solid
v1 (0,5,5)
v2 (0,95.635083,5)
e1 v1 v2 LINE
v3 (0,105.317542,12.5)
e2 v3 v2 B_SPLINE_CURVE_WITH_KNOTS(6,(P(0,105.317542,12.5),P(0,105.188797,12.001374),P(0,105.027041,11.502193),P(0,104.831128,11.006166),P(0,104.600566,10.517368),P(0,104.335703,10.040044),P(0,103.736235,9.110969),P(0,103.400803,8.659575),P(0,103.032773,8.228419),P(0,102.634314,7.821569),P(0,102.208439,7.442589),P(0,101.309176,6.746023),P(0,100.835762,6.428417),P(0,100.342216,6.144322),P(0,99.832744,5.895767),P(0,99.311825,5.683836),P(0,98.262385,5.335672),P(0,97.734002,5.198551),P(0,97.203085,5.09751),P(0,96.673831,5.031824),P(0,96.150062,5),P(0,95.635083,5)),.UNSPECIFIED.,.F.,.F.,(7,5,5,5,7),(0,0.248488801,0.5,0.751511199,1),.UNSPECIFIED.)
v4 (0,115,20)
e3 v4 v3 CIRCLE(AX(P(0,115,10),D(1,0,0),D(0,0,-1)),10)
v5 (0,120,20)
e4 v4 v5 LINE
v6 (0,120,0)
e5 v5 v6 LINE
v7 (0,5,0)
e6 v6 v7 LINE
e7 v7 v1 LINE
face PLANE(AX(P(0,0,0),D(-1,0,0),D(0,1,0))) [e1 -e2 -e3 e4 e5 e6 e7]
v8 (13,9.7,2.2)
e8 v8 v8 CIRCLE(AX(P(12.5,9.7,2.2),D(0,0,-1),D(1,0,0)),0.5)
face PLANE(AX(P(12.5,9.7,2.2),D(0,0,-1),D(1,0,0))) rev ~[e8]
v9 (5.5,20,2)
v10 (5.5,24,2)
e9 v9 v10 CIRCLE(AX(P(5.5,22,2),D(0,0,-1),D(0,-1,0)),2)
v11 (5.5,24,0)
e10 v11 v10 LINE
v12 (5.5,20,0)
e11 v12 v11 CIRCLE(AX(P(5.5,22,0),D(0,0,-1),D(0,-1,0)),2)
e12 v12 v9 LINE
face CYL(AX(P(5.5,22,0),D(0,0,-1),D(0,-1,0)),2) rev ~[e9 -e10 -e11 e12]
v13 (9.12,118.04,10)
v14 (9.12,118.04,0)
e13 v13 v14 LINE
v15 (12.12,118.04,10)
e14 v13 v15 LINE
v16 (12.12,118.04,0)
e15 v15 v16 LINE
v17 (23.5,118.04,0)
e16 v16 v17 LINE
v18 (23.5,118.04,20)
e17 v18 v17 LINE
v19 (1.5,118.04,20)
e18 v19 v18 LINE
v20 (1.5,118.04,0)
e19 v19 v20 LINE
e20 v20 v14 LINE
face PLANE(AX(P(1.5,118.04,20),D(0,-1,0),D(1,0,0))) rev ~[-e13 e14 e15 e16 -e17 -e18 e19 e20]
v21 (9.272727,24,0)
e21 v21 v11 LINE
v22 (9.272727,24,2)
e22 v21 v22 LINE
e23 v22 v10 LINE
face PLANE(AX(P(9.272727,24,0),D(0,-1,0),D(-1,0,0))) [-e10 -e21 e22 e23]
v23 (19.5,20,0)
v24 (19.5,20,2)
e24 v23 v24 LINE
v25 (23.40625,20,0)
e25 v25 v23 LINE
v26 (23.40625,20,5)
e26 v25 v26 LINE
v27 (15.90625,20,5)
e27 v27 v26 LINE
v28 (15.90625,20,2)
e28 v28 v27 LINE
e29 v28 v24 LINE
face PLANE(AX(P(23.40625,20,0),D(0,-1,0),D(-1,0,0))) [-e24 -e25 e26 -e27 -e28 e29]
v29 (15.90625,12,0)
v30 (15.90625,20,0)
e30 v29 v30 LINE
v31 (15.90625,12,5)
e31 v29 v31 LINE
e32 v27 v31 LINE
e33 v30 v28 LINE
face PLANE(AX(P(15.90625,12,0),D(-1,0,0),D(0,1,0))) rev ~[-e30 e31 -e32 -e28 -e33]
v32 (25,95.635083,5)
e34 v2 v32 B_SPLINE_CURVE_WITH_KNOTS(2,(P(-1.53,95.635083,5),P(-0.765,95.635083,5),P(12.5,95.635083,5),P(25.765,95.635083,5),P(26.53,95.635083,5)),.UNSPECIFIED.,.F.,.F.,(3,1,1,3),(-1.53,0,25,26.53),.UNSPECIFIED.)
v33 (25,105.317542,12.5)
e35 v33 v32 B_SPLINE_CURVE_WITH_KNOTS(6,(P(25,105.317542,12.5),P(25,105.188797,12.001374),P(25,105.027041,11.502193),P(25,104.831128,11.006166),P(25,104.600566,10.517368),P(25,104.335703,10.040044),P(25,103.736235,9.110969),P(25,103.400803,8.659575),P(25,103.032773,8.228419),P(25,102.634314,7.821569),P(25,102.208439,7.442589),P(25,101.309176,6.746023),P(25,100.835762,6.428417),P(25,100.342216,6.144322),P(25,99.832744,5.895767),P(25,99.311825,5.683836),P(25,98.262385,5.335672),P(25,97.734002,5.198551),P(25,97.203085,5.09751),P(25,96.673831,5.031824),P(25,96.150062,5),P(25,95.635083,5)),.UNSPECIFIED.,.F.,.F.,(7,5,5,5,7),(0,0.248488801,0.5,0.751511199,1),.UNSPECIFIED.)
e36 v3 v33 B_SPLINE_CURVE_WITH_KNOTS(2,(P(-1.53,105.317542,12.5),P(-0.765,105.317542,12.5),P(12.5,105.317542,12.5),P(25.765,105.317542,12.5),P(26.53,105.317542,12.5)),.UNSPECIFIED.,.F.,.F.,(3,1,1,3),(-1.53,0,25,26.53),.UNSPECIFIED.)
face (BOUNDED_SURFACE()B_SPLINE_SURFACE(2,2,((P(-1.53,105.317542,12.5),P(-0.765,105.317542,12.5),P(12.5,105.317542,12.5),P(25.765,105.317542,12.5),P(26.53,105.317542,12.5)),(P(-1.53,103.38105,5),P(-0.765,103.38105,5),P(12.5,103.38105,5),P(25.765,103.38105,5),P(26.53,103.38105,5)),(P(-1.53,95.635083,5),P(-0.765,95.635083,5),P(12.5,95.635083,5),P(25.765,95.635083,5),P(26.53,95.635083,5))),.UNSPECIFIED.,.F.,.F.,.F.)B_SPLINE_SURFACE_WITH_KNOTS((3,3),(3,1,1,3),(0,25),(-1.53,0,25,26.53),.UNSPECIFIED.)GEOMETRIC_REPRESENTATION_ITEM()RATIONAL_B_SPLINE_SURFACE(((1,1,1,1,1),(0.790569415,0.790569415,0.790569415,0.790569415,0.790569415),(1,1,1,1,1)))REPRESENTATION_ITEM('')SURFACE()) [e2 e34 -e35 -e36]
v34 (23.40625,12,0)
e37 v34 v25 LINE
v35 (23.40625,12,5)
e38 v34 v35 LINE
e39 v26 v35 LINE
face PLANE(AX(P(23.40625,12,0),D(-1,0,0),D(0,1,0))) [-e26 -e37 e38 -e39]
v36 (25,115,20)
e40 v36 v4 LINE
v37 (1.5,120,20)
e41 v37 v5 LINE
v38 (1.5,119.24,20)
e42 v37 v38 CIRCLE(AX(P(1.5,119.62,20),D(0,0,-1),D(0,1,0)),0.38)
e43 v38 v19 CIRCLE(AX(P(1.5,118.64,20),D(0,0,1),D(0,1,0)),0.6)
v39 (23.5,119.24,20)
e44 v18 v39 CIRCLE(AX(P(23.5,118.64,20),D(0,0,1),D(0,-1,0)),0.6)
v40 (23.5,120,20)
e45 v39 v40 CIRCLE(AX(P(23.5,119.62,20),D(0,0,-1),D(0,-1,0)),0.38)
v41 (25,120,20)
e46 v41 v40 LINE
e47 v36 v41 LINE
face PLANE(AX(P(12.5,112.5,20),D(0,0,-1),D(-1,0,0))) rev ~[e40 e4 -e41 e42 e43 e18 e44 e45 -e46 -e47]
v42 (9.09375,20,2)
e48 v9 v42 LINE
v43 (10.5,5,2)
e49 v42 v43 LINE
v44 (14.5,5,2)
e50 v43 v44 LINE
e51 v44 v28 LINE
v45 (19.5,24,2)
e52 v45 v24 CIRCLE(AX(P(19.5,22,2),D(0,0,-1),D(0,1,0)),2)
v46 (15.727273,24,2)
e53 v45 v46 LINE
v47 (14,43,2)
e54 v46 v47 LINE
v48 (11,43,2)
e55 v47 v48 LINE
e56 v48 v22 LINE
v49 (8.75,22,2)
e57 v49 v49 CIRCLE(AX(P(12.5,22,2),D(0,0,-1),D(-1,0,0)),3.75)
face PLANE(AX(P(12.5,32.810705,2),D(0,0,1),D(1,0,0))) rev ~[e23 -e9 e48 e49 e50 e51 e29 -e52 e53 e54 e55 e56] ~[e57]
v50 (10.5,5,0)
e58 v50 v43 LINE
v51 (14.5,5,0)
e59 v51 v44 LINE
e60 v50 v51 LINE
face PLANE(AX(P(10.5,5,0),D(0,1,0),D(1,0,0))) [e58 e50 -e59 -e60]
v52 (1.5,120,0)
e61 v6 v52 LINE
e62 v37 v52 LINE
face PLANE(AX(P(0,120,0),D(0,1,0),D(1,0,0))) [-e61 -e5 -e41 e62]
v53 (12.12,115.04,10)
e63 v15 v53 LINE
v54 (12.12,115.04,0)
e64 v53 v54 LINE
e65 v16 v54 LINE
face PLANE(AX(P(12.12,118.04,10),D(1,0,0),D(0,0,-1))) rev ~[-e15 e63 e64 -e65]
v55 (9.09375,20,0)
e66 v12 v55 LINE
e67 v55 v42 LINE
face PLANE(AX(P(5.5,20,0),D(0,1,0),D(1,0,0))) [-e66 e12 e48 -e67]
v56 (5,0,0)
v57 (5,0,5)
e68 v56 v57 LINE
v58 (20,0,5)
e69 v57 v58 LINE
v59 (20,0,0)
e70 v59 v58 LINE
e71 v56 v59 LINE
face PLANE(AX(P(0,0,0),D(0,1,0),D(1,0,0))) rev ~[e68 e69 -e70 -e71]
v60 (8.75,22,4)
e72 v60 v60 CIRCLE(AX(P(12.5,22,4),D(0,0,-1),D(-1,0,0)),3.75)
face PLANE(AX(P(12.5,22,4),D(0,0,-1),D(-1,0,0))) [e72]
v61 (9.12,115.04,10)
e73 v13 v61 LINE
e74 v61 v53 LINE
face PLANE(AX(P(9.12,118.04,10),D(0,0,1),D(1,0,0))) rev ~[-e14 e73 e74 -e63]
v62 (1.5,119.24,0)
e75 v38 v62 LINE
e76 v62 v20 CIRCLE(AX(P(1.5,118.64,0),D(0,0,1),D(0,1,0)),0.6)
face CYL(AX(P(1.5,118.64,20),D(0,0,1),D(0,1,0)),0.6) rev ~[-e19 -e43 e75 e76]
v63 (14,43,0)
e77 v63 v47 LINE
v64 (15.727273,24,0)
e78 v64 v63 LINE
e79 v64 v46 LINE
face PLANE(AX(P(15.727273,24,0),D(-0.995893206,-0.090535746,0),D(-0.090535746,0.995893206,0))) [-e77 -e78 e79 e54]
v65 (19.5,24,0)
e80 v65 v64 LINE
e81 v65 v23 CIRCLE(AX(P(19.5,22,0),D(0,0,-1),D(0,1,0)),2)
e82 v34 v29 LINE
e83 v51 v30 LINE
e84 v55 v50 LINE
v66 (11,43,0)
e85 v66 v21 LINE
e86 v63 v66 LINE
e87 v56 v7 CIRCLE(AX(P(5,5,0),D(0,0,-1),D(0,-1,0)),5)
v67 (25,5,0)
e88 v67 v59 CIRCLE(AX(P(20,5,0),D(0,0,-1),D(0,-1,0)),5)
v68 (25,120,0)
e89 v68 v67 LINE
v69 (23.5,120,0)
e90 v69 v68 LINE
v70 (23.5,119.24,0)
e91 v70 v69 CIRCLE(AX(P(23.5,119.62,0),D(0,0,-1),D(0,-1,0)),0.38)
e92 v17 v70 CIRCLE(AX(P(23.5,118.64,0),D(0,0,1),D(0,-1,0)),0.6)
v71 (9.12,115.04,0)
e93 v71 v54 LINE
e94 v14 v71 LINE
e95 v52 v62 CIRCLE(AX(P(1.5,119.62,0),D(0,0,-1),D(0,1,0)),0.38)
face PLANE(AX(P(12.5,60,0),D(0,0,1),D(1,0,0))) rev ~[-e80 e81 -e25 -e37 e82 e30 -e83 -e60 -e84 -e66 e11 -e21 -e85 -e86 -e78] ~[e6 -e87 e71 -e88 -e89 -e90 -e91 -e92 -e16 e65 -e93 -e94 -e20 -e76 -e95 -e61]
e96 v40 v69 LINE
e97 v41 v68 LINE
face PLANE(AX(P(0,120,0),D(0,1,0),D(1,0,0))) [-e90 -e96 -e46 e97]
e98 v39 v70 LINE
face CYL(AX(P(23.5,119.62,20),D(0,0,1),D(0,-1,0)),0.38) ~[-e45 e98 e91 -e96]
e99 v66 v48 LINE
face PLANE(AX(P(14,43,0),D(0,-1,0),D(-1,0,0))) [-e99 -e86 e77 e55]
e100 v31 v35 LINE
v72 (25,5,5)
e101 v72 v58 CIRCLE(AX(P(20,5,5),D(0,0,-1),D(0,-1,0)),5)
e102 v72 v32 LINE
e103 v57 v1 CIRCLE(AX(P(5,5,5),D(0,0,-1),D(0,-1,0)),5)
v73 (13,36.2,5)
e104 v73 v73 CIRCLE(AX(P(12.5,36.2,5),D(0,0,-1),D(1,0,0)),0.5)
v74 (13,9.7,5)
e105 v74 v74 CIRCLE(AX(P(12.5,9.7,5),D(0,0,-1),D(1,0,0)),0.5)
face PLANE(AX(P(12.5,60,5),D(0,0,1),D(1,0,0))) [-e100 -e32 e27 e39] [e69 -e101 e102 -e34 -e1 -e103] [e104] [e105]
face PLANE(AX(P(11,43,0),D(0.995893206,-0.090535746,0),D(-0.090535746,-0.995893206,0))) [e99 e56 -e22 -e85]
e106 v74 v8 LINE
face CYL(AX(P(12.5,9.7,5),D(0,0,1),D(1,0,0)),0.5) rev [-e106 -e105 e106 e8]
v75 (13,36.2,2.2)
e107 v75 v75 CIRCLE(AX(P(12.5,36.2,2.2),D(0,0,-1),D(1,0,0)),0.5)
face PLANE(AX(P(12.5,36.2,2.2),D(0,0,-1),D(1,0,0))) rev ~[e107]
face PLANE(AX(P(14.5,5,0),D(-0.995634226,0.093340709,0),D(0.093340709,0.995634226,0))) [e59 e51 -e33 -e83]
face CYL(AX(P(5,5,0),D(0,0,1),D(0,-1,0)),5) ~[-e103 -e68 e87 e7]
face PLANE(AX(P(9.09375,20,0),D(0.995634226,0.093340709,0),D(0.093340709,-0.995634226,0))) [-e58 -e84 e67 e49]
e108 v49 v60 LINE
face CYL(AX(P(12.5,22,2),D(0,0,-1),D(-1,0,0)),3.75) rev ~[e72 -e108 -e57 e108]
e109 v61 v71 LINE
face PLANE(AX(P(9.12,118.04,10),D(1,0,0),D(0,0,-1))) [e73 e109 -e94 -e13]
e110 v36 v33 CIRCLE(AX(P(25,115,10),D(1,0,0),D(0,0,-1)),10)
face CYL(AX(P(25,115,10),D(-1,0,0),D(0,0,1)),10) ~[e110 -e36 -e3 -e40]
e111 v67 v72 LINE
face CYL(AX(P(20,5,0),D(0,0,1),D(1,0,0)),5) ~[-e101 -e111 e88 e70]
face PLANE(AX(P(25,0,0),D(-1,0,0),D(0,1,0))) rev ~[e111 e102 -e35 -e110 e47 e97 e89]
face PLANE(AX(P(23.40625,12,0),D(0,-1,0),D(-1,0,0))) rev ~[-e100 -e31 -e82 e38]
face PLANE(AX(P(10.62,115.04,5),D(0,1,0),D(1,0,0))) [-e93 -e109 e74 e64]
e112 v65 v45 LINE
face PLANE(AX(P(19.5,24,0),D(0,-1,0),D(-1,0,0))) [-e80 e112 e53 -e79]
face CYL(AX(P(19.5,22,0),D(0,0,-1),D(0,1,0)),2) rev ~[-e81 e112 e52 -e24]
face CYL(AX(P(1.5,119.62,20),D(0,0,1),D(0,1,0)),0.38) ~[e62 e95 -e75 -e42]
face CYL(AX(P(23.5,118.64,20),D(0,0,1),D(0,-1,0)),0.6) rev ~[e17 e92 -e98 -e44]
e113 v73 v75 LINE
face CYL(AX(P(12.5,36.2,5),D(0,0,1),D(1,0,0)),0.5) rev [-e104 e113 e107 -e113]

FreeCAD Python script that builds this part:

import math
import FreeCAD as App
import Part
import Sketcher
from FreeCAD import Vector
Q = App.Units.Quantity


def edges_at(feature, points):
    """Names of the edges that pass closest to the given points."""
    edges = feature.Shape.Edges
    near = lambda p: min(range(len(edges)), key=lambda i: edges[i].distToShape(Part.Vertex(*p))[0])
    return sorted({f"Edge{near(p) + 1}" for p in points})


def add_polygon(sketch, points):
    """Adds a closed chain of lines whose ends are joined by coincident constraints."""
    first, n = sketch.GeometryCount, len(points)
    for a, b in zip(points, points[1:] + points[:1]):
        sketch.addGeometry(Part.LineSegment(App.Vector(*a, 0), App.Vector(*b, 0)), False)
    for i in range(n):
        sketch.addConstraint(Sketcher.Constraint("Coincident", first + i, 2, first + (i + 1) % n, 1))

doc = App.newDocument("Part")
body = doc.addObject("PartDesign::Body", "Body")

# Sketch on XY plane
sketch1 = doc.addObject("Sketcher::SketchObject", "Sketch")
body.addObject(sketch1)
sketch1.AttachmentSupport = (doc.XY_Plane, [""])
sketch1.MapMode = "FlatFace"
add_polygon(sketch1, [(0, 120), (0, 0), (25, 0), (25, 120)])  # lines 0-3
sketch1.addConstraint([
    Sketcher.Constraint("Vertical", 0),
    Sketcher.Constraint("Horizontal", 1),
    Sketcher.Constraint("Vertical", 2),
    Sketcher.Constraint("Horizontal", 3),
    Sketcher.Constraint("Coincident", 0, 2, -1, 1),
    Sketcher.Constraint("DistanceX", 1, 1, 1, 2, Q("25 mm")),
    Sketcher.Constraint("DistanceY", 0, 2, 0, 1, Q("120 mm")),
])
pad1 = doc.addObject("PartDesign::Pad", "Pad")
body.addObject(pad1)
pad1.Profile = sketch1
pad1.Length = 5

# Sketch on XY plane
sketch2 = doc.addObject("Sketcher::SketchObject", "Sketch001")
body.addObject(sketch2)
sketch2.AttachmentSupport = (doc.XY_Plane, [""])
sketch2.MapMode = "FlatFace"
add_polygon(sketch2, [(25, 120), (25, 105), (0, 105), (0, 120)])  # lines 0-3
sketch2.addConstraint([
    Sketcher.Constraint("Vertical", 0),
    Sketcher.Constraint("Horizontal", 1),
    Sketcher.Constraint("Vertical", 2),
    Sketcher.Constraint("Horizontal", 3),
    Sketcher.Constraint("PointOnObject", 1, 2, -2),
    Sketcher.Constraint("DistanceX", 1, 2, 1, 1, Q("25 mm")),
    Sketcher.Constraint("DistanceY", 0, 2, 0, 1, Q("15 mm")),
    Sketcher.Constraint("DistanceY", -1, 1, 0, 2, Q("105 mm")),
])
pad2 = doc.addObject("PartDesign::Pad", "Pad001")
body.addObject(pad2)
pad2.Profile = sketch2
pad2.Length = 20
doc.recompute()

fillet = doc.addObject("PartDesign::Fillet", "Fillet")
body.addObject(fillet)
fillet.Base = (pad2, edges_at(pad2, [(25, 0, 2.5)]))
fillet.Radius = 5
doc.recompute()

fillet2 = doc.addObject("PartDesign::Fillet", "Fillet001")
body.addObject(fillet2)
fillet2.Base = (fillet, edges_at(fillet, [(0, 0, 2.5)]))
fillet2.Radius = 5

# Sketch on XY plane
sketch3 = doc.addObject("Sketcher::SketchObject", "Sketch002")
body.addObject(sketch3)
sketch3.AttachmentSupport = (doc.XY_Plane, [""])
sketch3.MapMode = "FlatFace"
sketch3.AttachmentOffset = App.Placement(Vector(0, 0, 20), App.Rotation())
sketch3.addGeometry([
    Part.LineSegment(Vector(1.5, 118.04, 0), Vector(23.5, 118.04, 0)),  # 0
    Part.ArcOfCircle(Part.Circle(Vector(23.5, 118.64, 0), Vector(0, 0, 1), 0.6), math.radians(-90), math.radians(90)),  # 1
    Part.ArcOfCircle(Part.Circle(Vector(23.5, 119.62, 0), Vector(0, 0, 1), 0.38), math.radians(90), math.radians(270)),  # 2
    Part.LineSegment(Vector(23.5, 120, 0), Vector(1.5, 120, 0)),  # 3
    Part.ArcOfCircle(Part.Circle(Vector(1.5, 119.62, 0), Vector(0, 0, 1), 0.38), math.radians(-90), math.radians(90)),  # 4
    Part.ArcOfCircle(Part.Circle(Vector(1.5, 118.64, 0), Vector(0, 0, 1), 0.6), math.radians(90), math.radians(270)),  # 5
], False)
sketch3.addConstraint([
    Sketcher.Constraint("Tangent", 0, 2, 1, 1),
    Sketcher.Constraint("Tangent", 1, 2, 2, 2),
    Sketcher.Constraint("Tangent", 2, 1, 3, 1),
    Sketcher.Constraint("Tangent", 3, 2, 4, 2),
    Sketcher.Constraint("Tangent", 4, 1, 5, 1),
    Sketcher.Constraint("Tangent", 5, 2, 0, 1),
    Sketcher.Constraint("Horizontal", 0),
    Sketcher.Constraint("Horizontal", 3),
    Sketcher.Constraint("Equal", 2, 4),
    Sketcher.Constraint("Vertical", 1, 3, 2, 3),
    Sketcher.Constraint("Vertical", 4, 3, 5, 3),
    Sketcher.Constraint("Radius", 1, Q("0.6 mm")),
    Sketcher.Constraint("DistanceX", 0, 1, 0, 2, Q("22 mm")),
    Sketcher.Constraint("Radius", 2, Q("0.38 mm")),
    Sketcher.Constraint("DistanceY", -1, 1, 2, 1, Q("120 mm")),
    Sketcher.Constraint("DistanceX", -1, 1, 1, 3, Q("23.5 mm")),
])
pocket1 = doc.addObject("PartDesign::Pocket", "Pocket")
body.addObject(pocket1)
pocket1.Profile = sketch3
pocket1.Length = 20
doc.recompute()

fillet3 = doc.addObject("PartDesign::Fillet", "Fillet002")
body.addObject(fillet3)
fillet3.Base = (pocket1, edges_at(pocket1, [(12.5, 105, 20)]))
fillet3.Radius = 10
doc.recompute()

fillet4 = doc.addObject("PartDesign::Fillet", "Fillet003")
body.addObject(fillet4)
fillet4.Base = (fillet3, edges_at(fillet3, [(12.5, 105, 5)]))
fillet4.Radius = 10

# Sketch on XZ plane
sketch4 = doc.addObject("Sketcher::SketchObject", "Sketch003")
body.addObject(sketch4)
sketch4.AttachmentSupport = (doc.XZ_Plane, [""])
sketch4.MapMode = "FlatFace"
sketch4.AttachmentOffset = App.Placement(Vector(0, 0, -118.04), App.Rotation())
add_polygon(sketch4, [(9.1, 0), (9.1, 10), (12.1, 10), (12.1, 0)])  # lines 0-3
sketch4.addConstraint([
    Sketcher.Constraint("Vertical", 0),
    Sketcher.Constraint("Horizontal", 1),
    Sketcher.Constraint("Vertical", 2),
    Sketcher.Constraint("Horizontal", 3),
    Sketcher.Constraint("PointOnObject", 2, 2, -1),
    Sketcher.Constraint("DistanceX", 1, 1, 1, 2, Q("3 mm")),
    Sketcher.Constraint("DistanceY", 0, 1, 0, 2, Q("10 mm")),
    Sketcher.Constraint("DistanceX", -1, 1, 0, 2, Q("9.12 mm")),
])
pocket2 = doc.addObject("PartDesign::Pocket", "Pocket001")
body.addObject(pocket2)
pocket2.Profile = sketch4
pocket2.Length = 3
pocket2.Reversed = True

# Sketch on XY plane
sketch5 = doc.addObject("Sketcher::SketchObject", "Sketch004")
body.addObject(sketch5)
sketch5.AttachmentSupport = (doc.XY_Plane, [""])
sketch5.MapMode = "FlatFace"
sketch5.addGeometry([
    Part.LineSegment(Vector(11, 43, 0), Vector(9.3, 24, 0)),  # 0
    Part.LineSegment(Vector(9.3, 24, 0), Vector(5.5, 24, 0)),  # 1
    Part.ArcOfCircle(Part.Circle(Vector(5.5, 22, 0), Vector(0, 0, 1), 2), math.radians(90), math.radians(270)),  # 2
    Part.LineSegment(Vector(5.5, 20, 0), Vector(9.1, 20, 0)),  # 3
    Part.LineSegment(Vector(9.1, 20, 0), Vector(10.5, 5, 0)),  # 4
    Part.LineSegment(Vector(10.5, 5, 0), Vector(14.5, 5, 0)),  # 5
    Part.LineSegment(Vector(14.5, 5, 0), Vector(15.9, 20, 0)),  # 6
    Part.LineSegment(Vector(15.9, 20, 0), Vector(19.5, 20, 0)),  # 7
    Part.ArcOfCircle(Part.Circle(Vector(19.5, 22, 0), Vector(0, 0, 1), 2), math.radians(-90), math.radians(90)),  # 8
    Part.LineSegment(Vector(19.5, 24, 0), Vector(15.7, 24, 0)),  # 9
    Part.LineSegment(Vector(15.7, 24, 0), Vector(14, 43, 0)),  # 10
    Part.LineSegment(Vector(14, 43, 0), Vector(11, 43, 0)),  # 11
], False)
sketch5.addConstraint([
    Sketcher.Constraint("Coincident", 0, 2, 1, 1),
    Sketcher.Constraint("Tangent", 1, 2, 2, 1),
    Sketcher.Constraint("Tangent", 2, 2, 3, 1),
    Sketcher.Constraint("Coincident", 3, 2, 4, 1),
    Sketcher.Constraint("Coincident", 4, 2, 5, 1),
    Sketcher.Constraint("Coincident", 5, 2, 6, 1),
    Sketcher.Constraint("Coincident", 6, 2, 7, 1),
    Sketcher.Constraint("Tangent", 7, 2, 8, 1),
    Sketcher.Constraint("Tangent", 8, 2, 9, 1),
    Sketcher.Constraint("Coincident", 9, 2, 10, 1),
    Sketcher.Constraint("Coincident", 10, 2, 11, 1),
    Sketcher.Constraint("Coincident", 11, 2, 0, 1),
    Sketcher.Constraint("Horizontal", 1),
    Sketcher.Constraint("Horizontal", 3),
    Sketcher.Constraint("Horizontal", 5),
    Sketcher.Constraint("Horizontal", 7),
    Sketcher.Constraint("Horizontal", 9),
    Sketcher.Constraint("Horizontal", 11),
    Sketcher.Constraint("Equal", 2, 8),
    Sketcher.Constraint("Horizontal", 2, 3, 8, 3),
    Sketcher.Constraint("Equal", 3, 7),
    Sketcher.Constraint("Equal", 1, 9),
    Sketcher.Constraint("Equal", 4, 6),
    Sketcher.Constraint("Equal", 0, 10),
    Sketcher.Constraint("Radius", 2, Q("2 mm")),
    Sketcher.Constraint("DistanceX", 5, 1, 5, 2, Q("4 mm")),
    Sketcher.Constraint("DistanceX", 11, 2, 11, 1, Q("3 mm")),
    Sketcher.Constraint("DistanceY", -1, 1, 2, 3, Q("22 mm")),
    Sketcher.Constraint("DistanceY", -1, 1, 4, 2, Q("5 mm")),
    Sketcher.Constraint("DistanceX", -1, 1, 10, 2, Q("14 mm")),
    Sketcher.Constraint("DistanceY", -1, 1, 10, 2, Q("43 mm")),
    Sketcher.Constraint("DistanceX", 2, 3, 8, 3, Q("14 mm")),
    Sketcher.Constraint("DistanceX", 3, 1, 3, 2, Q("3.59375 mm")),
    Sketcher.Constraint("Distance", 0, Q("19.078351 mm")),
])
pocket3 = doc.addObject("PartDesign::Pocket", "Pocket002")
body.addObject(pocket3)
pocket3.Profile = sketch5
pocket3.Length = 2
pocket3.Reversed = True

# Sketch on XY plane
sketch6 = doc.addObject("Sketcher::SketchObject", "Sketch005")
body.addObject(sketch6)
sketch6.AttachmentSupport = (doc.XY_Plane, [""])
sketch6.MapMode = "FlatFace"
sketch6.AttachmentOffset = App.Placement(Vector(0, 0, 5), App.Rotation())
sketch6.addGeometry([
    Part.Circle(Vector(12.5, 36.2, 0), Vector(0, 0, 1), 0.5),
    Part.Circle(Vector(12.5, 9.7, 0), Vector(0, 0, 1), 0.5),
], False)
sketch6.addConstraint([
    Sketcher.Constraint("Equal", 0, 1),
    Sketcher.Constraint("Vertical", 0, 3, 1, 3),
    Sketcher.Constraint("Diameter", 0, Q("1 mm")),
    Sketcher.Constraint("DistanceX", -1, 1, 0, 3, Q("12.5 mm")),
    Sketcher.Constraint("DistanceY", -1, 1, 0, 3, Q("36.2 mm")),
    Sketcher.Constraint("DistanceY", -1, 1, 1, 3, Q("9.7 mm")),
])
pocket4 = doc.addObject("PartDesign::Pocket", "Pocket003")
body.addObject(pocket4)
pocket4.Profile = sketch6
pocket4.Length = 2.8

# Sketch on XY plane
sketch7 = doc.addObject("Sketcher::SketchObject", "Sketch006")
body.addObject(sketch7)
sketch7.AttachmentSupport = (doc.XY_Plane, [""])
sketch7.MapMode = "FlatFace"
sketch7.AttachmentOffset = App.Placement(Vector(0, 0, 2), App.Rotation())
sketch7.addGeometry(Part.Circle(Vector(12.5, 22, 0), Vector(0, 0, 1), 3.8), False)
sketch7.addConstraint([
    Sketcher.Constraint("Diameter", 0, Q("7.5 mm")),
    Sketcher.Constraint("DistanceY", -1, 1, 0, 3, Q("22 mm")),
    Sketcher.Constraint("DistanceX", -1, 1, 0, 3, Q("12.5 mm")),
])
pocket5 = doc.addObject("PartDesign::Pocket", "Pocket004")
body.addObject(pocket5)
pocket5.Profile = sketch7
pocket5.Length = 2
pocket5.Reversed = True

# Sketch on XY plane
sketch8 = doc.addObject("Sketcher::SketchObject", "Sketch007")
body.addObject(sketch8)
sketch8.AttachmentSupport = (doc.XY_Plane, [""])
sketch8.MapMode = "FlatFace"
add_polygon(sketch8, [(23, 20), (23, 12), (16, 12), (16, 20)])  # lines 0-3
sketch8.addConstraint([
    Sketcher.Constraint("Vertical", 0),
    Sketcher.Constraint("Horizontal", 1),
    Sketcher.Constraint("Vertical", 2),
    Sketcher.Constraint("Horizontal", 3),
    Sketcher.Constraint("DistanceY", 0, 2, 0, 1, Q("8 mm")),
    Sketcher.Constraint("DistanceX", 1, 2, 1, 1, Q("7.5 mm")),
    Sketcher.Constraint("DistanceY", -1, 1, 0, 2, Q("12 mm")),
    Sketcher.Constraint("DistanceX", -1, 1, 0, 2, Q("23.40625 mm")),
])
pocket6 = doc.addObject("PartDesign::Pocket", "Pocket005")
body.addObject(pocket6)
pocket6.Profile = sketch8
pocket6.Type = "ThroughAll"
pocket6.Reversed = True

doc.recompute()
